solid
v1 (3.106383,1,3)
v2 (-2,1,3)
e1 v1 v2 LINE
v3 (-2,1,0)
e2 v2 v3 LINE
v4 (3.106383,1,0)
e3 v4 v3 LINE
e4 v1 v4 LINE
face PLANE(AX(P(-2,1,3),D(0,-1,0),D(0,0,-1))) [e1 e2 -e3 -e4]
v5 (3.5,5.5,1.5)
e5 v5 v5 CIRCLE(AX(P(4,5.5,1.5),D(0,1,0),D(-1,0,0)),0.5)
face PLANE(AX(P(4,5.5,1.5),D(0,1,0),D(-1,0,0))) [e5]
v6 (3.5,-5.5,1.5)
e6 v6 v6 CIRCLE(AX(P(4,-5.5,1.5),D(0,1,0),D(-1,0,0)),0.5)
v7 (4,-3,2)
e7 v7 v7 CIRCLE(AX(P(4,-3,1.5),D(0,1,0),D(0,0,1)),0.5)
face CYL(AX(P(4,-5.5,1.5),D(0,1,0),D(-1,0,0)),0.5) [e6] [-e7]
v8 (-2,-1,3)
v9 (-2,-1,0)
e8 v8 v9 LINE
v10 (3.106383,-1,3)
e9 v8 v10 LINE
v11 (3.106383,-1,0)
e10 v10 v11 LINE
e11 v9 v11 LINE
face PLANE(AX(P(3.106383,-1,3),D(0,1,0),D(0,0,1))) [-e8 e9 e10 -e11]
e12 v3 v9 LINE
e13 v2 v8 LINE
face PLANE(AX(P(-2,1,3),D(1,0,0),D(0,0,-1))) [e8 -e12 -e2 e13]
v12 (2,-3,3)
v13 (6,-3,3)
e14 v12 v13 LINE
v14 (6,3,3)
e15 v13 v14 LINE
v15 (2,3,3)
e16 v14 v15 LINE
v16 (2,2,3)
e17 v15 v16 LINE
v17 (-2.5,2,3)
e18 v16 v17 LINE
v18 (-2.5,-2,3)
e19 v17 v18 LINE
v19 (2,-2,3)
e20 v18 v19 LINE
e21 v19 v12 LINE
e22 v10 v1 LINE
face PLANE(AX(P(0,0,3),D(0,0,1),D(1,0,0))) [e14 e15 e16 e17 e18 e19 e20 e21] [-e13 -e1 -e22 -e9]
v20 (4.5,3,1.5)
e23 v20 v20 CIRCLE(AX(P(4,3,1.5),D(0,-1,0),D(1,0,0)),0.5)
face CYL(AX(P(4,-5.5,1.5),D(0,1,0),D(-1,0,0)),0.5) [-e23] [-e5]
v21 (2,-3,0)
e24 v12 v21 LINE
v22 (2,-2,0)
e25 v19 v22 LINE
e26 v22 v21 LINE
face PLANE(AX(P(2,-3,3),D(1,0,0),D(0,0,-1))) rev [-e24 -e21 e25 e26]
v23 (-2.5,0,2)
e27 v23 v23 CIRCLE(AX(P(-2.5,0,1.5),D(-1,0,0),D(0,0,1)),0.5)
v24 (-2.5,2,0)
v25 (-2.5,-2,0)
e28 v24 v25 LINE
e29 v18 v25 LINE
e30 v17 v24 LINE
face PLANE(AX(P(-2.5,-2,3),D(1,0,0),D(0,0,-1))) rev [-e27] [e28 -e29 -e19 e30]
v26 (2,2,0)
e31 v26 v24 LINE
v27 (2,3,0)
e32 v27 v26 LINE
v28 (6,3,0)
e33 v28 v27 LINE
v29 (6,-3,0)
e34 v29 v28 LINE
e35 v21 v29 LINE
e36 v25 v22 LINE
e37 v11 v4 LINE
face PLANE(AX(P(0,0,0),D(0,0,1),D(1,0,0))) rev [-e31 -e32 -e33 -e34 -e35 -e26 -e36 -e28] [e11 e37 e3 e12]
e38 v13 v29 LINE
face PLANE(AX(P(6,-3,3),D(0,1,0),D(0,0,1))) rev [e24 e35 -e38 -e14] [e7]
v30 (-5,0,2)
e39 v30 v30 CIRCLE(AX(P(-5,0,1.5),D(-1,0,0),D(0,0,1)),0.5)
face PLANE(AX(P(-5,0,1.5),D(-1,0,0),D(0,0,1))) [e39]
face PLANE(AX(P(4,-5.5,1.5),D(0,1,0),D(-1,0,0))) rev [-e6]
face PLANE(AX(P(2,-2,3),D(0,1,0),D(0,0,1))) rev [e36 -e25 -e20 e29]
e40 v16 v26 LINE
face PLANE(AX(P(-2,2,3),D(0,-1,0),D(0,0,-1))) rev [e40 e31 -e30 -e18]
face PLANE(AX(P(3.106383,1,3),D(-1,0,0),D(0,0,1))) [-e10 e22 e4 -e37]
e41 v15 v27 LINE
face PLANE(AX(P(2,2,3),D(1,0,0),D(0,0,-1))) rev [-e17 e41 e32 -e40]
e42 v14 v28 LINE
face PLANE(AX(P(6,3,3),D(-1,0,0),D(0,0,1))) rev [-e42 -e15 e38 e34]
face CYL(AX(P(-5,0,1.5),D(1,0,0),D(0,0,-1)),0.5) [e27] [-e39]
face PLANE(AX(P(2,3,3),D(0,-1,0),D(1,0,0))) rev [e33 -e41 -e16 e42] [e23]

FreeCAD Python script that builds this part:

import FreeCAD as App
import Part
import Sketcher
from FreeCAD import Vector
Q = App.Units.Quantity


def add_polygon(sketch, points):
    """Adds a closed chain of lines whose ends are joined by coincident constraints."""
    first, n = sketch.GeometryCount, len(points)
    for a, b in zip(points, points[1:] + points[:1]):
        sketch.addGeometry(Part.LineSegment(App.Vector(*a, 0), App.Vector(*b, 0)), False)
    for i in range(n):
        sketch.addConstraint(Sketcher.Constraint("Coincident", first + i, 2, first + (i + 1) % n, 1))

doc = App.newDocument("Part")
body = doc.addObject("PartDesign::Body", "Body")

sketch1 = body.newObject("Sketcher::SketchObject", "Sketch")
sketch1.AttachmentSupport = (doc.getObject("XY_Plane"), [""])
sketch1.MapMode = "FlatFace"
add_polygon(sketch1, [(2, 2), (-2.5, 2), (-2.5, -2), (2, -2), (2, -3), (6, -3), (6, 3), (2, 3)])
add_polygon(sketch1, [(-2, -1), (-2, 1), (3.1, 1), (3.1, -1)])
sketch1.addConstraint([
    Sketcher.Constraint("Horizontal", 0),
    Sketcher.Constraint("Vertical", 1),
    Sketcher.Constraint("Horizontal", 2),
    Sketcher.Constraint("Vertical", 3),
    Sketcher.Constraint("Horizontal", 4),
    Sketcher.Constraint("Vertical", 5),
    Sketcher.Constraint("Horizontal", 6),
    Sketcher.Constraint("Vertical", 7),
    Sketcher.Constraint("Vertical", 8),
    Sketcher.Constraint("Horizontal", 9),
    Sketcher.Constraint("Vertical", 10),
    Sketcher.Constraint("Horizontal", 11),
    Sketcher.Constraint("Symmetric", 3, 2, 6, 2, -1),
    Sketcher.Constraint("Equal", 6, 1),
    Sketcher.Constraint("Equal", 3, 7),
    Sketcher.Constraint("DistanceX", 4, 1, 4, 2, Q("4 mm")),
    Sketcher.Constraint("DistanceY", 3, 2, 3, 1, Q("1 mm")),
    Sketcher.Constraint("DistanceY", 8, 1, 8, 2, Q("2 mm")),
    Sketcher.Constraint("DistanceX", 0, 2, 0, 1, Q("4.5 mm")),
    Sketcher.Constraint("DistanceX", -1, 1, 2, 2, Q("2 mm")),
    Sketcher.Constraint("DistanceX", 8, 2, -1, 1, Q("2 mm")),
    Sketcher.Constraint("DistanceY", -1, 1, 8, 2, Q("1 mm")),
    Sketcher.Constraint("DistanceX", 9, 1, 9, 2, Q("5.106383 mm")),
])
pad1 = body.newObject("PartDesign::Pad", "Pad")
pad1.Profile = sketch1
pad1.Length = 3

sketch2 = body.newObject("Sketcher::SketchObject", "Sketch001")
sketch2.AttachmentSupport = (doc.getObject("XZ_Plane"), [""])
sketch2.MapMode = "FlatFace"
sketch2.AttachmentOffset = App.Placement(Vector(0, 0, -3), App.Rotation())
sketch2.addGeometry(Part.Circle(Vector(4, 1.5, 0), Vector(0, 0, 1), 0.5), False)
sketch2.addConstraint([
    Sketcher.Constraint("Diameter", 0, Q("1 mm")),
    Sketcher.Constraint("DistanceX", -1, 1, 0, 3, Q("4 mm")),
    Sketcher.Constraint("DistanceY", -1, 1, 0, 3, Q("1.5 mm")),
])
pad2 = body.newObject("PartDesign::Pad", "Pad001")
pad2.Profile = sketch2
pad2.Type = "TwoLengths"
pad2.Length = 2.5
pad2.Length2 = 8.5
pad2.Reversed = True

sketch3 = body.newObject("Sketcher::SketchObject", "Sketch002")
sketch3.AttachmentSupport = (doc.getObject("YZ_Plane"), [""])
sketch3.MapMode = "FlatFace"
sketch3.AttachmentOffset = App.Placement(Vector(0, 0, -2.5), App.Rotation())
sketch3.addGeometry(Part.Circle(Vector(0, 1.5, 0), Vector(0, 0, 1), 0.5), False)
sketch3.addConstraint([
    Sketcher.Constraint("PointOnObject", 0, 3, -2),
    Sketcher.Constraint("Diameter", 0, Q("1 mm")),
    Sketcher.Constraint("DistanceY", -1, 1, 0, 3, Q("1.5 mm")),
])
pad3 = body.newObject("PartDesign::Pad", "Pad002")
pad3.Profile = sketch3
pad3.Length = 2.5
pad3.Reversed = True

doc.recompute()
